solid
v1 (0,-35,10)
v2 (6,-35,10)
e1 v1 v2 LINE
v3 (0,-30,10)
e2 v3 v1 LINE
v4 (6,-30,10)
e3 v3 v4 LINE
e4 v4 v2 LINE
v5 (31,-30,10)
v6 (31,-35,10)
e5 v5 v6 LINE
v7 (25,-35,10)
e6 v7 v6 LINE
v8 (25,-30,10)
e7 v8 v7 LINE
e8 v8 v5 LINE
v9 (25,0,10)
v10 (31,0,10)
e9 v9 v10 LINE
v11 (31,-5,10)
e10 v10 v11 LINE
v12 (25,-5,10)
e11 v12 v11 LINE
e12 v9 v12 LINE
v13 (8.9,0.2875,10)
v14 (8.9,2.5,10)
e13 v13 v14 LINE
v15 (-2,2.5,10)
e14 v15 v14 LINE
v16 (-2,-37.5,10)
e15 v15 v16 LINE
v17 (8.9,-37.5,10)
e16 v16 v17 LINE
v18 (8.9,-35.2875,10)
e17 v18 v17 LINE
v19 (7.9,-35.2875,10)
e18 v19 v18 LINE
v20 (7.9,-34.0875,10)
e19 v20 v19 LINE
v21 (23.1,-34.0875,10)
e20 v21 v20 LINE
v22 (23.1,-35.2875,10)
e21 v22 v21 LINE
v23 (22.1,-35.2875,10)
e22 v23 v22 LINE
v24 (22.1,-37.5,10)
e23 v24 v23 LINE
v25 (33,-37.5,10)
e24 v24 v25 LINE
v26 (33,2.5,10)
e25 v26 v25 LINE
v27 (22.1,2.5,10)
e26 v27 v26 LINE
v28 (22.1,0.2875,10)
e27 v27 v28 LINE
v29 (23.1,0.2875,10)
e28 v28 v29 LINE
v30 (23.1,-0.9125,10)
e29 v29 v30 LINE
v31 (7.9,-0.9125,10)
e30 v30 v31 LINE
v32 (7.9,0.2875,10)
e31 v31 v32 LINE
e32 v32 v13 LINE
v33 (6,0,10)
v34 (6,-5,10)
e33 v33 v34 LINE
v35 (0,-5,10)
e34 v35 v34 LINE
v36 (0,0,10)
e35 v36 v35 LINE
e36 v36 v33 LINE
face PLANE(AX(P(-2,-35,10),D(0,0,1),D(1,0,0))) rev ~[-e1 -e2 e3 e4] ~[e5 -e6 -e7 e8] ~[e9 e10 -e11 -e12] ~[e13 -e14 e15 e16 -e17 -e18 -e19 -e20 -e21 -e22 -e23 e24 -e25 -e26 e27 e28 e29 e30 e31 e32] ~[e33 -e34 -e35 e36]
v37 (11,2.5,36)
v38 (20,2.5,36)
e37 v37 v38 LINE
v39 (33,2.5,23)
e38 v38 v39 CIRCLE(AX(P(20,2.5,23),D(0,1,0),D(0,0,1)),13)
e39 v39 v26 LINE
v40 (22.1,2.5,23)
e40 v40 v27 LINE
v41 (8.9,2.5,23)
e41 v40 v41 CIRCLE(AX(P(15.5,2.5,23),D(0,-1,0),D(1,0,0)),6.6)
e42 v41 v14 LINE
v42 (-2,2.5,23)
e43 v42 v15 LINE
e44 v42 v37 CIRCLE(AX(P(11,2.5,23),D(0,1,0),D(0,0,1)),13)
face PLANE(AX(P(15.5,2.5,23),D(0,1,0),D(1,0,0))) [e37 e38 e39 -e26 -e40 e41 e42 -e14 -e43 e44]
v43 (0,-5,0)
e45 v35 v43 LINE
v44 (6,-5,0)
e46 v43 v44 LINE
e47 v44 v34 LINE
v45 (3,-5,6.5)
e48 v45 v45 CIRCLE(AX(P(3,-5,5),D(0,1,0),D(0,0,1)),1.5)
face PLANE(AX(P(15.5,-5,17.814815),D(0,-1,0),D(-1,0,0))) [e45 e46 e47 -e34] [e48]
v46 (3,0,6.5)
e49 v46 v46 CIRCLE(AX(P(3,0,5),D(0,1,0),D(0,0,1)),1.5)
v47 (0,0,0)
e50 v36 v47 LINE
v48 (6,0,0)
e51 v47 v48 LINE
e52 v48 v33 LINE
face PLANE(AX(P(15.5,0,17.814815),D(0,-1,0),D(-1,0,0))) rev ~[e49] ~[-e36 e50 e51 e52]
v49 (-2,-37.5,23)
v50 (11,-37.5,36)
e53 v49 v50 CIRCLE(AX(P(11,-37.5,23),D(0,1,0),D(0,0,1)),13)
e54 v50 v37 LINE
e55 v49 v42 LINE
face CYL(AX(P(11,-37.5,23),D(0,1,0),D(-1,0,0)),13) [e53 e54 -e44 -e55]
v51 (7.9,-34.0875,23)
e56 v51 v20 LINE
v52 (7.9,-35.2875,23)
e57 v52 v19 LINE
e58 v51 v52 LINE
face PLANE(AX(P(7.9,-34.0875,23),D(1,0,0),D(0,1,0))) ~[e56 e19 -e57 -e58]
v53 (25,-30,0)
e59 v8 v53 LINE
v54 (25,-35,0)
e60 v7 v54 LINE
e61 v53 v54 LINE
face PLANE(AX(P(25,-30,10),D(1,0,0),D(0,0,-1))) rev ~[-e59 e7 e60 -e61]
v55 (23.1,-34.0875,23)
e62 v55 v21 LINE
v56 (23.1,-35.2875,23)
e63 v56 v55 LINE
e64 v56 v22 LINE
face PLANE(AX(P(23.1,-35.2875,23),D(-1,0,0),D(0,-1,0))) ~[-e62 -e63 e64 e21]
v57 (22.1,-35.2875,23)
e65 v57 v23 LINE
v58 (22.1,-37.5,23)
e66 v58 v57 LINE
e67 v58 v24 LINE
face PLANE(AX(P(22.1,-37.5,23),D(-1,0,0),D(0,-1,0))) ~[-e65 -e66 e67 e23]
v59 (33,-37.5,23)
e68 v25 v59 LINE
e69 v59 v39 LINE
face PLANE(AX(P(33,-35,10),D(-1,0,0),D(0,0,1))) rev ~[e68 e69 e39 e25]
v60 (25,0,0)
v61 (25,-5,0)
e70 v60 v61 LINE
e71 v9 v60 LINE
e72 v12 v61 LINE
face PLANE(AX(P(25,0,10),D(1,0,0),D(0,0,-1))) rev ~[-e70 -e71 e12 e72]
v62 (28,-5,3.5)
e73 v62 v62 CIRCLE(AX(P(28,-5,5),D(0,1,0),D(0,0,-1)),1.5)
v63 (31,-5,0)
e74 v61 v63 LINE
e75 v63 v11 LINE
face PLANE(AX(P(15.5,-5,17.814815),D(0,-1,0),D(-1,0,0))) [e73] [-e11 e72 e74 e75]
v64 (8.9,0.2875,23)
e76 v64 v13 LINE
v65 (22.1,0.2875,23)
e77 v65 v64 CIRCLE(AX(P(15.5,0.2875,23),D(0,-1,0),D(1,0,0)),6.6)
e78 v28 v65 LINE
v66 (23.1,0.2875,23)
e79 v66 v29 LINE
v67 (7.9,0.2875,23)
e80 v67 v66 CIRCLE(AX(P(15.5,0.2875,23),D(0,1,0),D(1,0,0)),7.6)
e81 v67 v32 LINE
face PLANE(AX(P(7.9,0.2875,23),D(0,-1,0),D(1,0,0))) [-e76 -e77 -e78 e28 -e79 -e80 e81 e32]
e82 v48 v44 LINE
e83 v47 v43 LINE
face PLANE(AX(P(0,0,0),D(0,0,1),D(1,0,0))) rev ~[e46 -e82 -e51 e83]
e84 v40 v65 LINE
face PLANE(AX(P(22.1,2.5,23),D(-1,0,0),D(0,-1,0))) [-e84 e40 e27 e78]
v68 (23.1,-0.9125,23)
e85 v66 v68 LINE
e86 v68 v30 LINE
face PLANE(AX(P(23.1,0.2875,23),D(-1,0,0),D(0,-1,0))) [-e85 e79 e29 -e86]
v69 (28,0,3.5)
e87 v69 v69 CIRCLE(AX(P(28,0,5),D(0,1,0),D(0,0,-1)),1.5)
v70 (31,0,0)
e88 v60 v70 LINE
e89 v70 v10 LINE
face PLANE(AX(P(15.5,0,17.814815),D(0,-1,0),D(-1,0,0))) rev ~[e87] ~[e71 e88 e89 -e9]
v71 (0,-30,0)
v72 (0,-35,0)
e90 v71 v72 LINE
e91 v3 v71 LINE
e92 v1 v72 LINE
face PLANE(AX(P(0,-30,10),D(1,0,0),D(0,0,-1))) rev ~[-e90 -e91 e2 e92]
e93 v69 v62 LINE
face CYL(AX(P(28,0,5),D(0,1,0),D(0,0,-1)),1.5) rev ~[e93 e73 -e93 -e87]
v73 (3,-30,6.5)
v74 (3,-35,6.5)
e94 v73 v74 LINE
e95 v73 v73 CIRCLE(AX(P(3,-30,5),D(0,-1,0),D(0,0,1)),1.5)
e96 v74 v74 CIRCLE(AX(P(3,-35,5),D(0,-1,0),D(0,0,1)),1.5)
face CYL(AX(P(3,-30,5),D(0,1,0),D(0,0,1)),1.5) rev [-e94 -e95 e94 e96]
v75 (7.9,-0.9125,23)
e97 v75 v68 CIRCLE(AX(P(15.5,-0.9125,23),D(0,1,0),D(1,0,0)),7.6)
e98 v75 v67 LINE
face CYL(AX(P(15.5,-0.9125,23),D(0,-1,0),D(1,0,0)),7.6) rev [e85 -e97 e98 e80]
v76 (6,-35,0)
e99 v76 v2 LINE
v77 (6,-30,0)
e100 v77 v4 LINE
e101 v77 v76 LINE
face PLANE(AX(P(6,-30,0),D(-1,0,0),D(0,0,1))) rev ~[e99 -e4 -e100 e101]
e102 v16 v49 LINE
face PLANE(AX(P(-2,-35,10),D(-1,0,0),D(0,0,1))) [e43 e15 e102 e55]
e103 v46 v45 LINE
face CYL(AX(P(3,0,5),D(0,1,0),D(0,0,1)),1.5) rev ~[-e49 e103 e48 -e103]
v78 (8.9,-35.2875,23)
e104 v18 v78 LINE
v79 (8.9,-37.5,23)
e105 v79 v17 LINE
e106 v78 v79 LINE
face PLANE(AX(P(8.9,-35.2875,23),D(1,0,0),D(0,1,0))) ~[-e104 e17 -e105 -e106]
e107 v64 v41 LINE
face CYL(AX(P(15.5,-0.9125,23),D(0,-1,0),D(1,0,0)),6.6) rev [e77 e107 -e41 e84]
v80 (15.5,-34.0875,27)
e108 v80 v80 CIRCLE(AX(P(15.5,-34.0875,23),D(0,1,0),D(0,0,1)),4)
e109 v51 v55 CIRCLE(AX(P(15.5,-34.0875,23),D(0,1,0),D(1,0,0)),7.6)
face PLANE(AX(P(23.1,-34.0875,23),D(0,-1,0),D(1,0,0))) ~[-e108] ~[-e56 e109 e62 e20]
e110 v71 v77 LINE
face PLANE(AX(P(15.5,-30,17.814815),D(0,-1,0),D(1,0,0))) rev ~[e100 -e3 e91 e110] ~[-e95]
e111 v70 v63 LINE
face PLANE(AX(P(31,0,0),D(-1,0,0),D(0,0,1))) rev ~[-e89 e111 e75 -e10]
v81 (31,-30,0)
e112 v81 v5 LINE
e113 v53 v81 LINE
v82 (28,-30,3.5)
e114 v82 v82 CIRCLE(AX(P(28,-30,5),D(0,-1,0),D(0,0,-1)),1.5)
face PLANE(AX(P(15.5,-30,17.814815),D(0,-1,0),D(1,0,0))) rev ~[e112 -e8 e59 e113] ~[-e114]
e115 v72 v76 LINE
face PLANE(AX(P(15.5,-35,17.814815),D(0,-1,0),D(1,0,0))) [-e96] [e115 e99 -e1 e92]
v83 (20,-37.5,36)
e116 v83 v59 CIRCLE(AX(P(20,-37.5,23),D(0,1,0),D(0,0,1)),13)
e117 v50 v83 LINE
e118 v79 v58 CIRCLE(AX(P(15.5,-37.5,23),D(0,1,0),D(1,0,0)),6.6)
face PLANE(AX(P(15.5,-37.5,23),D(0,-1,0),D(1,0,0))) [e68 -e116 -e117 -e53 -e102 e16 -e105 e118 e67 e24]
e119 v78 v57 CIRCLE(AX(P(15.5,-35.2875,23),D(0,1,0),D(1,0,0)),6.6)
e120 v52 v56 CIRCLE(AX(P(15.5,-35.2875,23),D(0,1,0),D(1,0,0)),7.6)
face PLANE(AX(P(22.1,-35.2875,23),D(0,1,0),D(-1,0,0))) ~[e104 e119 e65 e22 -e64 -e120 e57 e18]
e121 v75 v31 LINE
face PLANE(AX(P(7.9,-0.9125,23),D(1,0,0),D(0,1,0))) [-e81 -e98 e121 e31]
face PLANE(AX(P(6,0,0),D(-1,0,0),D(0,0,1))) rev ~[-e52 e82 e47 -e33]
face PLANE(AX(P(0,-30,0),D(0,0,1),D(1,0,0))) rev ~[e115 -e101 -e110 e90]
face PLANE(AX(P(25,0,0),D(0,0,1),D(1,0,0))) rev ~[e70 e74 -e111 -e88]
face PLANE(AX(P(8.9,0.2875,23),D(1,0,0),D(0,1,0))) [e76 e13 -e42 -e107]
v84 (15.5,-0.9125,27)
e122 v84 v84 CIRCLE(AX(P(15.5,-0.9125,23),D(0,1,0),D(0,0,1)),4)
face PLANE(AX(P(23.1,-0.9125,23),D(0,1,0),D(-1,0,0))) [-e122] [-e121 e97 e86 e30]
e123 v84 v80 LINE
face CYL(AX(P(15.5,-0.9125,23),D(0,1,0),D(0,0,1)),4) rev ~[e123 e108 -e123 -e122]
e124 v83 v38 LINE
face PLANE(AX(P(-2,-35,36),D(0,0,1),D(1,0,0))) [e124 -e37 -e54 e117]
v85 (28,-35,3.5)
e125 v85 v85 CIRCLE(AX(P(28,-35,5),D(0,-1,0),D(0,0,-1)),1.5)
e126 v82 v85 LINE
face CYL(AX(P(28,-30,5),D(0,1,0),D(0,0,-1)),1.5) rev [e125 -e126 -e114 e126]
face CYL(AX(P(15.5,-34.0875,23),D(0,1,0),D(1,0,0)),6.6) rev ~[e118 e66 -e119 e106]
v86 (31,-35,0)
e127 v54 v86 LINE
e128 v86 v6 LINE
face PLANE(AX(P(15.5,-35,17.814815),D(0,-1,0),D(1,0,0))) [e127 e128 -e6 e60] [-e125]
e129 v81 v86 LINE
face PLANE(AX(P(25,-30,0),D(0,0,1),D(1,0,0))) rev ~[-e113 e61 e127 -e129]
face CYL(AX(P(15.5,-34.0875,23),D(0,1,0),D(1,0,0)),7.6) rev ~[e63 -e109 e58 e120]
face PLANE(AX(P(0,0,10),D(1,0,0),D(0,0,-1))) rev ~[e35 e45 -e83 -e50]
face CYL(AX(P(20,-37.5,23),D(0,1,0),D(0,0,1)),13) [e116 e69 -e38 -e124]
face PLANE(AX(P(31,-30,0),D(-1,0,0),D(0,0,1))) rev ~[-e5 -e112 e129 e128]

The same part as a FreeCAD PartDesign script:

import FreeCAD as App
import Part
import Sketcher

V = App.Vector
Q = App.Units.Quantity


def edges_at(feature, points):
    """Names of the edges that pass closest to the given points."""
    edges = feature.Shape.Edges
    near = lambda p: min(range(len(edges)), key=lambda i: edges[i].distToShape(Part.Vertex(*p))[0])
    return sorted({f"Edge{near(p) + 1}" for p in points})


def add_polygon(sketch, points):
    """Adds a closed chain of lines whose ends are joined by coincident constraints."""
    first, n = sketch.GeometryCount, len(points)
    for a, b in zip(points, points[1:] + points[:1]):
        sketch.addGeometry(Part.LineSegment(App.Vector(*a, 0), App.Vector(*b, 0)), False)
    for i in range(n):
        sketch.addConstraint(Sketcher.Constraint("Coincident", first + i, 2, first + (i + 1) % n, 1))

doc = App.newDocument("Part")
body = doc.addObject("PartDesign::Body", "Body")

sketch1 = doc.addObject("Sketcher::SketchObject", "Sketch")
body.addObject(sketch1)
sketch1.AttachmentSupport = (doc.XZ_Plane, [""])
sketch1.MapMode = "FlatFace"
add_polygon(sketch1, [(-2, 10), (-2, 36), (33, 36), (33, 10)])
sketch1.addConstraint([
    Sketcher.Constraint("Vertical", 0),
    Sketcher.Constraint("Horizontal", 1),
    Sketcher.Constraint("Vertical", 2),
    Sketcher.Constraint("Horizontal", 3),
    Sketcher.Constraint("DistanceX", 1, 1, 1, 2, Q("35 mm")),
    Sketcher.Constraint("DistanceY", 0, 1, 0, 2, Q("26 mm")),
    Sketcher.Constraint("DistanceX", 0, 2, -1, 1, Q("2 mm")),
    Sketcher.Constraint("DistanceY", -1, 1, 0, 2, Q("36 mm")),
])
pad1 = doc.addObject("PartDesign::Pad", "Pad")
body.addObject(pad1)
pad1.Profile = sketch1
pad1.Length = 2.5
pad1.Reversed = True

sketch2 = doc.addObject("Sketcher::SketchObject", "Sketch001")
body.addObject(sketch2)
sketch2.AttachmentSupport = (doc.XZ_Plane, [""])
sketch2.MapMode = "FlatFace"
add_polygon(sketch2, [(6, 0), (0, 0), (0, 10), (-2, 10), (-2, 36), (33, 36), (33, 10), (31, 10), (31, 0), (25, 0), (25, 10), (6, 10)])
sketch2.addGeometry(Part.Circle(V(28, 5, 0), V(0, 0, 1), 1.5), False)
sketch2.addGeometry(Part.Circle(V(3, 5, 0), V(0, 0, 1), 1.5), False)
sketch2.addConstraint([
    Sketcher.Constraint("Horizontal", 0),
    Sketcher.Constraint("Vertical", 1),
    Sketcher.Constraint("Horizontal", 2),
    Sketcher.Constraint("Vertical", 3),
    Sketcher.Constraint("Horizontal", 4),
    Sketcher.Constraint("Vertical", 5),
    Sketcher.Constraint("Horizontal", 6),
    Sketcher.Constraint("Vertical", 7),
    Sketcher.Constraint("Horizontal", 8),
    Sketcher.Constraint("Vertical", 9),
    Sketcher.Constraint("Horizontal", 10),
    Sketcher.Constraint("Vertical", 11),
    Sketcher.Constraint("Coincident", 0, 2, -1, 1),
    Sketcher.Constraint("Equal", 12, 13),
    Sketcher.Constraint("PointOnObject", 7, 2, -1),
    Sketcher.Constraint("Horizontal", 12, 3, 13, 3),
    Sketcher.Constraint("Horizontal", 2, 2, 5, 2),
    Sketcher.Constraint("Horizontal", 6, 2, 9, 2),
    Sketcher.Constraint("Equal", 2, 6),
    Sketcher.Constraint("Equal", 0, 8),
    Sketcher.Constraint("Diameter", 12, Q("3 mm")),
    Sketcher.Constraint("DistanceX", 0, 2, 0, 1, Q("6 mm")),
    Sketcher.Constraint("DistanceX", 2, 2, 2, 1, Q("2 mm")),
    Sketcher.Constraint("DistanceX", 4, 1, 4, 2, Q("35 mm")),
    Sketcher.Constraint("DistanceY", 1, 1, 1, 2, Q("10 mm")),
    Sketcher.Constraint("DistanceY", 3, 1, 3, 2, Q("26 mm")),
    Sketcher.Constraint("DistanceX", -1, 1, 12, 3, Q("28 mm")),
    Sketcher.Constraint("DistanceY", -1, 1, 12, 3, Q("5 mm")),
    Sketcher.Constraint("DistanceX", -1, 1, 13, 3, Q("3 mm")),
])
pad2 = doc.addObject("PartDesign::Pad", "Pad001")
body.addObject(pad2)
pad2.Profile = sketch2
pad2.Length = 5

sketch3 = doc.addObject("Sketcher::SketchObject", "Sketch002")
body.addObject(sketch3)
sketch3.AttachmentSupport = (doc.XZ_Plane, [""])
sketch3.MapMode = "FlatFace"
sketch3.AttachmentOffset = App.Placement(V(0, 0, 5), App.Rotation())
add_polygon(sketch3, [(-2, 36), (-2, 10), (33, 10), (33, 36)])
sketch3.addConstraint([
    Sketcher.Constraint("Vertical", 0),
    Sketcher.Constraint("Horizontal", 1),
    Sketcher.Constraint("Vertical", 2),
    Sketcher.Constraint("Horizontal", 3),
    Sketcher.Constraint("DistanceX", 1, 1, 1, 2, Q("35 mm")),
    Sketcher.Constraint("DistanceY", 0, 2, 0, 1, Q("26 mm")),
    Sketcher.Constraint("DistanceX", 0, 2, -1, 1, Q("2 mm")),
    Sketcher.Constraint("DistanceY", -1, 1, 0, 2, Q("10 mm")),
])
pad3 = doc.addObject("PartDesign::Pad", "Pad002")
body.addObject(pad3)
pad3.Profile = sketch3
pad3.Length = 2.5

sketch4 = doc.addObject("Sketcher::SketchObject", "Sketch003")
body.addObject(sketch4)
sketch4.AttachmentSupport = (doc.XY_Plane, [""])
sketch4.MapMode = "FlatFace"
sketch4.AttachmentOffset = App.Placement(V(0, 0, 23), App.Rotation())
add_polygon(sketch4, [(22.1, 2.5), (22.1, 0.3), (23.1, 0.3), (23.1, -0.9), (7.9, -0.9), (7.9, 0.3), (8.9, 0.3), (8.9, 2.5)])
sketch4.addConstraint([
    Sketcher.Constraint("Vertical", 0),
    Sketcher.Constraint("Horizontal", 1),
    Sketcher.Constraint("Vertical", 2),
    Sketcher.Constraint("Horizontal", 3),
    Sketcher.Constraint("Vertical", 4),
    Sketcher.Constraint("Horizontal", 5),
    Sketcher.Constraint("Vertical", 6),
    Sketcher.Constraint("Horizontal", 7),
    Sketcher.Constraint("Horizontal", 1, 2, 4, 2),
    Sketcher.Constraint("Equal", 1, 5),
    Sketcher.Constraint("DistanceX", 1, 1, 1, 2, Q("1 mm")),
    Sketcher.Constraint("DistanceX", 3, 2, 3, 1, Q("15.2 mm")),
    Sketcher.Constraint("DistanceY", 2, 2, 2, 1, Q("1.2 mm")),
    Sketcher.Constraint("DistanceX", -1, 1, 0, 2, Q("22.1 mm")),
    Sketcher.Constraint("DistanceY", -1, 1, 6, 2, Q("2.5 mm")),
    Sketcher.Constraint("DistanceY", 0, 2, 0, 1, Q("2.2125 mm")),
])
pocket1 = doc.addObject("PartDesign::Pocket", "Pocket")
body.addObject(pocket1)
pocket1.Profile = sketch4
pocket1.Length = 56.676106

sketch5 = doc.addObject("Sketcher::SketchObject", "Sketch004")
body.addObject(sketch5)
sketch5.AttachmentSupport = (doc.XZ_Plane, [""])
sketch5.MapMode = "FlatFace"
sketch5.AttachmentOffset = App.Placement(V(0, 0, 0.9125), App.Rotation())
sketch5.addGeometry(Part.Circle(V(16, 23, 0), V(0, 0, 1), 8), False)
sketch5.addConstraint([
    Sketcher.Constraint("Diameter", 0, Q("15.2 mm")),
    Sketcher.Constraint("DistanceY", -1, 1, 0, 3, Q("23 mm")),
    Sketcher.Constraint("DistanceX", -1, 1, 0, 3, Q("15.5 mm")),
])
pocket2 = doc.addObject("PartDesign::Pocket", "Pocket001")
body.addObject(pocket2)
pocket2.Profile = sketch5
pocket2.Length = 1.2

sketch6 = doc.addObject("Sketcher::SketchObject", "Sketch005")
body.addObject(sketch6)
sketch6.AttachmentSupport = (doc.XZ_Plane, [""])
sketch6.MapMode = "FlatFace"
sketch6.AttachmentOffset = App.Placement(V(0, 0, 0.9125), App.Rotation())
sketch6.addGeometry(Part.Circle(V(16, 23, 0), V(0, 0, 1), 7), False)
sketch6.addConstraint([
    Sketcher.Constraint("Diameter", 0, Q("13.2 mm")),
    Sketcher.Constraint("DistanceY", -1, 1, 0, 3, Q("23 mm")),
    Sketcher.Constraint("DistanceX", -1, 1, 0, 3, Q("15.5 mm")),
])
pocket3 = doc.addObject("PartDesign::Pocket", "Pocket002")
body.addObject(pocket3)
pocket3.Profile = sketch6
pocket3.Type = "ThroughAll"

sketch7 = doc.addObject("Sketcher::SketchObject", "Sketch006")
body.addObject(sketch7)
sketch7.AttachmentSupport = (doc.XZ_Plane, [""])
sketch7.MapMode = "FlatFace"
sketch7.AttachmentOffset = App.Placement(V(0, 0, 7.5), App.Rotation())
add_polygon(sketch7, [(-2, 36), (-2, 10), (33, 10), (33, 36)])
sketch7.addConstraint([
    Sketcher.Constraint("Vertical", 0),
    Sketcher.Constraint("Horizontal", 1),
    Sketcher.Constraint("Vertical", 2),
    Sketcher.Constraint("Horizontal", 3),
    Sketcher.Constraint("DistanceX", 1, 1, 1, 2, Q("35 mm")),
    Sketcher.Constraint("DistanceY", 0, 2, 0, 1, Q("26 mm")),
    Sketcher.Constraint("DistanceX", 0, 2, -1, 1, Q("2 mm")),
    Sketcher.Constraint("DistanceY", -1, 1, 0, 2, Q("10 mm")),
])
pad4 = doc.addObject("PartDesign::Pad", "Pad003")
body.addObject(pad4)
pad4.Profile = sketch7
pad4.Length = 15

sketch8 = doc.addObject("Sketcher::SketchObject", "Sketch007")
body.addObject(sketch8)
sketch8.AttachmentSupport = (doc.XZ_Plane, [""])
sketch8.MapMode = "FlatFace"
sketch8.AttachmentOffset = App.Placement(V(0, 0, 22.5), App.Rotation())
add_polygon(sketch8, [(-2, 36), (-2, 10), (33, 10), (33, 36)])
sketch8.addConstraint([
    Sketcher.Constraint("Vertical", 0),
    Sketcher.Constraint("Horizontal", 1),
    Sketcher.Constraint("Vertical", 2),
    Sketcher.Constraint("Horizontal", 3),
    Sketcher.Constraint("DistanceX", 1, 1, 1, 2, Q("35 mm")),
    Sketcher.Constraint("DistanceY", 0, 2, 0, 1, Q("26 mm")),
    Sketcher.Constraint("DistanceX", 0, 2, -1, 1, Q("2 mm")),
    Sketcher.Constraint("DistanceY", -1, 1, 0, 2, Q("10 mm")),
])
pad5 = doc.addObject("PartDesign::Pad", "Pad004")
body.addObject(pad5)
pad5.Profile = sketch8
pad5.Length = 7.5

sketch9 = doc.addObject("Sketcher::SketchObject", "Sketch008")
body.addObject(sketch9)
sketch9.AttachmentSupport = (doc.XZ_Plane, [""])
sketch9.MapMode = "FlatFace"
sketch9.AttachmentOffset = App.Placement(V(0, 0, 30), App.Rotation())
add_polygon(sketch9, [(0, 0), (6, 0), (6, 10), (25, 10), (25, 0), (31, 0), (31, 10), (33, 10), (33, 36), (-2, 36), (-2, 10), (0, 10)])
sketch9.addGeometry(Part.Circle(V(3, 5, 0), V(0, 0, 1), 1.5), False)
sketch9.addGeometry(Part.Circle(V(28, 5, 0), V(0, 0, 1), 1.5), False)
sketch9.addConstraint([
    Sketcher.Constraint("Horizontal", 0),
    Sketcher.Constraint("Vertical", 1),
    Sketcher.Constraint("Horizontal", 2),
    Sketcher.Constraint("Vertical", 3),
    Sketcher.Constraint("Horizontal", 4),
    Sketcher.Constraint("Vertical", 5),
    Sketcher.Constraint("Horizontal", 6),
    Sketcher.Constraint("Vertical", 7),
    Sketcher.Constraint("Horizontal", 8),
    Sketcher.Constraint("Vertical", 9),
    Sketcher.Constraint("Horizontal", 10),
    Sketcher.Constraint("Vertical", 11),
    Sketcher.Constraint("Coincident", 11, 2, -1, 1),
    Sketcher.Constraint("Equal", 12, 13),
    Sketcher.Constraint("PointOnObject", 3, 2, -1),
    Sketcher.Constraint("Horizontal", 12, 3, 13, 3),
    Sketcher.Constraint("Horizontal", 2, 2, 5, 2),
    Sketcher.Constraint("Horizontal", 6, 2, 9, 2),
    Sketcher.Constraint("Equal", 0, 4),
    Sketcher.Constraint("Equal", 6, 10),
    Sketcher.Constraint("Diameter", 12, Q("3 mm")),
    Sketcher.Constraint("DistanceX", 0, 1, 0, 2, Q("6 mm")),
    Sketcher.Constraint("DistanceX", 2, 1, 2, 2, Q("19 mm")),
    Sketcher.Constraint("DistanceX", 6, 1, 6, 2, Q("2 mm")),
    Sketcher.Constraint("DistanceY", 1, 1, 1, 2, Q("10 mm")),
    Sketcher.Constraint("DistanceY", 7, 1, 7, 2, Q("26 mm")),
    Sketcher.Constraint("DistanceX", -1, 1, 12, 3, Q("3 mm")),
    Sketcher.Constraint("DistanceY", -1, 1, 12, 3, Q("5 mm")),
    Sketcher.Constraint("DistanceX", -1, 1, 13, 3, Q("28 mm")),
])
pad6 = doc.addObject("PartDesign::Pad", "Pad005")
body.addObject(pad6)
pad6.Profile = sketch9
pad6.Length = 5

sketch10 = doc.addObject("Sketcher::SketchObject", "Sketch009")
body.addObject(sketch10)
sketch10.AttachmentSupport = (doc.XZ_Plane, [""])
sketch10.MapMode = "FlatFace"
sketch10.AttachmentOffset = App.Placement(V(0, 0, 35), App.Rotation())
add_polygon(sketch10, [(-2, 36), (-2, 10), (33, 10), (33, 36)])
sketch10.addConstraint([
    Sketcher.Constraint("Vertical", 0),
    Sketcher.Constraint("Horizontal", 1),
    Sketcher.Constraint("Vertical", 2),
    Sketcher.Constraint("Horizontal", 3),
    Sketcher.Constraint("DistanceX", 1, 1, 1, 2, Q("35 mm")),
    Sketcher.Constraint("DistanceY", 0, 2, 0, 1, Q("26 mm")),
    Sketcher.Constraint("DistanceX", 0, 2, -1, 1, Q("2 mm")),
    Sketcher.Constraint("DistanceY", -1, 1, 0, 2, Q("10 mm")),
])
pad7 = doc.addObject("PartDesign::Pad", "Pad006")
body.addObject(pad7)
pad7.Profile = sketch10
pad7.Length = 2.5
doc.recompute()

datumplane = doc.addObject("PartDesign::Plane", "DatumPlane")
body.addObject(datumplane)
datumplane.AttachmentSupport = (doc.XZ_Plane, [""])
datumplane.MapMode = "FlatFace"
datumplane.AttachmentOffset = App.Placement(V(0, 0, 17.5), App.Rotation())
mirrored = doc.addObject("PartDesign::Mirrored", "Mirrored")
body.addObject(mirrored)
mirrored.Originals = [pocket1, pocket2, pocket3]
mirrored.MirrorPlane = (datumplane, [""])
body.Tip = mirrored

sketch11 = doc.addObject("Sketcher::SketchObject", "Sketch010")
body.addObject(sketch11)
sketch11.AttachmentSupport = (doc.XZ_Plane, [""])
sketch11.MapMode = "FlatFace"
sketch11.AttachmentOffset = App.Placement(V(0, 0, 0.9125), App.Rotation())
sketch11.addGeometry(Part.Circle(V(15.5, 23, 0), V(0, 0, 1), 4), False)
sketch11.addConstraint([
    Sketcher.Constraint("Diameter", 0, Q("8 mm")),
    Sketcher.Constraint("DistanceY", -1, 1, 0, 3, Q("23 mm")),
    Sketcher.Constraint("DistanceX", -1, 1, 0, 3, Q("15.5 mm")),
])
pocket4 = doc.addObject("PartDesign::Pocket", "Pocket003")
body.addObject(pocket4)
pocket4.Profile = sketch11
pocket4.Type = "ThroughAll"
pocket4.Reversed = True
doc.recompute()

fillet = doc.addObject("PartDesign::Fillet", "Fillet")
body.addObject(fillet)
fillet.Base = (pocket4, edges_at(pocket4, [(33, -17.5, 36), (-2, -17.5, 36)]))
fillet.Radius = 13

doc.recompute()
